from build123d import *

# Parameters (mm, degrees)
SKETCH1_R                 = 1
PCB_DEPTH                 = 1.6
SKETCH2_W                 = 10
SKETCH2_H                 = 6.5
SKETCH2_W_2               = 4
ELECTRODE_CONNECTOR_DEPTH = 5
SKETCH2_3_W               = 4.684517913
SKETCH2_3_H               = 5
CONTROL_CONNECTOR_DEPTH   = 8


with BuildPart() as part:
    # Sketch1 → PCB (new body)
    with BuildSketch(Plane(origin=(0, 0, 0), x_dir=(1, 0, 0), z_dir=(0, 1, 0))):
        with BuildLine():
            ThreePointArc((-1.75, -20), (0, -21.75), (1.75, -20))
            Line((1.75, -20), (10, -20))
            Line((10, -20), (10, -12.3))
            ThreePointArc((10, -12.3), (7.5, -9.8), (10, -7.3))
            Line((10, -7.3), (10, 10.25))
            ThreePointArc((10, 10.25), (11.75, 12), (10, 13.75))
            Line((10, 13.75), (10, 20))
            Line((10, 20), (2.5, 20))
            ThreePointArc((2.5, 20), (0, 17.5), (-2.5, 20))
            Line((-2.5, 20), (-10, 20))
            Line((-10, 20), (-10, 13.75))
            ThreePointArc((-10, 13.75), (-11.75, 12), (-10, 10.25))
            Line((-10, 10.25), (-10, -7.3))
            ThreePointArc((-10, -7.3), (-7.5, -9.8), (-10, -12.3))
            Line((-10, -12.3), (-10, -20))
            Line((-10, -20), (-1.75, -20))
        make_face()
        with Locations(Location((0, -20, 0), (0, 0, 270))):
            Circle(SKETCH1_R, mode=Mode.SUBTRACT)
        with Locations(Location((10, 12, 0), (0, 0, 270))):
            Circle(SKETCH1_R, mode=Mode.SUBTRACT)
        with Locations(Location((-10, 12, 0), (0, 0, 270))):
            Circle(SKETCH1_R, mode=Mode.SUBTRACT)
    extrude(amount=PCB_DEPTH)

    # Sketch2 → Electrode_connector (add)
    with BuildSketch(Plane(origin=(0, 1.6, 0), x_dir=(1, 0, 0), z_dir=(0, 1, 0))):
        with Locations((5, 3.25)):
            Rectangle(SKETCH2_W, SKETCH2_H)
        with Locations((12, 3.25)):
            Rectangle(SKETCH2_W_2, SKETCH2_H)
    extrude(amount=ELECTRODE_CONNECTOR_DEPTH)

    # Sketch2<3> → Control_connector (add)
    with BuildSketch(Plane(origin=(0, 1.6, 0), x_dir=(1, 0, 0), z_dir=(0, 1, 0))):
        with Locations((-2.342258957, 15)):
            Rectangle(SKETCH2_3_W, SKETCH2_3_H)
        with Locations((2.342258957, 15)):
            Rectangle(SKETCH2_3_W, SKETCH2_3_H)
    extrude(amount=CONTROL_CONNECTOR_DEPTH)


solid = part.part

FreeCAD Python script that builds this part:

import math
import FreeCAD as App
import Part
import Sketcher
from FreeCAD import Vector
Q = App.Units.Quantity

doc = App.newDocument("Part")
params = doc.addObject("Spreadsheet::Sheet", "Params")
for row, (alias, value) in enumerate([
    ("sketch1_diameter", "2 mm"),
    ("sketch1_radius", "2.5 mm"),
    ("sketch1_radius2", "1.75 mm"),
    ("sketch1_width", "7.5 mm"),
    ("sketch1_height", "7.7 mm"),
    ("pad1_length", "1.6 mm"),
    ("sketch2_width", "14 mm"),
    ("sketch2_height", "6.5 mm"),
    ("pad2_length", "5 mm"),
    ("sketch3_height", "5 mm"),
    ("pad3_length", "8 mm"),
], start=1):
    params.set(f"A{row}", alias)
    params.set(f"B{row}", "=" + value)
    params.setAlias(f"B{row}", alias)

body = doc.addObject("PartDesign::Body", "Body")

# Sketch on XZ plane
sketch1 = body.newObject("Sketcher::SketchObject", "Sketch")
sketch1.AttachmentSupport = (doc.getObject("XZ_Plane"), [""])
sketch1.MapMode = "FlatFace"
sketch1.addGeometry(Part.ArcOfCircle(Part.Circle(Vector(0, 20, 0), Vector(0, 0, 1), 1.8), math.radians(0), math.radians(180)), False)
sketch1.addGeometry(Part.LineSegment(Vector(1.8, 20, 0), Vector(10, 20, 0)), False)
sketch1.addGeometry(Part.LineSegment(Vector(10, 20, 0), Vector(10, 12.3, 0)), False)
sketch1.addGeometry(Part.ArcOfCircle(Part.Circle(Vector(10, 9.8, 0), Vector(0, 0, 1), 2.5), math.radians(90), math.radians(270)), False)
sketch1.addGeometry(Part.LineSegment(Vector(10, 7.3, 0), Vector(10, -10.2, 0)), False)
sketch1.addGeometry(Part.ArcOfCircle(Part.Circle(Vector(10, -12, 0), Vector(0, 0, 1), 1.8), math.radians(-90), math.radians(90)), False)
sketch1.addGeometry(Part.LineSegment(Vector(10, -13.8, 0), Vector(10, -20, 0)), False)
sketch1.addGeometry(Part.LineSegment(Vector(10, -20, 0), Vector(2.5, -20, 0)), False)
sketch1.addGeometry(Part.ArcOfCircle(Part.Circle(Vector(0, -20, 0), Vector(0, 0, 1), 2.5), math.radians(0), math.radians(180)), False)
sketch1.addGeometry(Part.LineSegment(Vector(-2.5, -20, 0), Vector(-10, -20, 0)), False)
sketch1.addGeometry(Part.LineSegment(Vector(-10, -20, 0), Vector(-10, -13.8, 0)), False)
sketch1.addGeometry(Part.ArcOfCircle(Part.Circle(Vector(-10, -12, 0), Vector(0, 0, 1), 1.8), math.radians(90), math.radians(270)), False)
sketch1.addGeometry(Part.LineSegment(Vector(-10, -10.2, 0), Vector(-10, 7.3, 0)), False)
sketch1.addGeometry(Part.ArcOfCircle(Part.Circle(Vector(-10, 9.8, 0), Vector(0, 0, 1), 2.5), math.radians(-90), math.radians(90)), False)
sketch1.addGeometry(Part.LineSegment(Vector(-10, 12.3, 0), Vector(-10, 20, 0)), False)
sketch1.addGeometry(Part.LineSegment(Vector(-10, 20, 0), Vector(-1.8, 20, 0)), False)
sketch1.addGeometry(Part.Circle(Vector(0, 20, 0), Vector(0, 0, 1), 1), False)
sketch1.addGeometry(Part.Circle(Vector(-10, -12, 0), Vector(0, 0, 1), 1), False)
sketch1.addGeometry(Part.Circle(Vector(10, -12, 0), Vector(0, 0, 1), 1), False)
sketch1.addConstraint(Sketcher.Constraint("Coincident", 0, 1, 1, 1))
sketch1.addConstraint(Sketcher.Constraint("Coincident", 1, 2, 2, 1))
sketch1.addConstraint(Sketcher.Constraint("Coincident", 2, 2, 3, 1))
sketch1.addConstraint(Sketcher.Constraint("Coincident", 3, 2, 4, 1))
sketch1.addConstraint(Sketcher.Constraint("Coincident", 4, 2, 5, 2))
sketch1.addConstraint(Sketcher.Constraint("Coincident", 5, 1, 6, 1))
sketch1.addConstraint(Sketcher.Constraint("Coincident", 6, 2, 7, 1))
sketch1.addConstraint(Sketcher.Constraint("Coincident", 7, 2, 8, 1))
sketch1.addConstraint(Sketcher.Constraint("Coincident", 8, 2, 9, 1))
sketch1.addConstraint(Sketcher.Constraint("Coincident", 9, 2, 10, 1))
sketch1.addConstraint(Sketcher.Constraint("Coincident", 10, 2, 11, 2))
sketch1.addConstraint(Sketcher.Constraint("Coincident", 11, 1, 12, 1))
sketch1.addConstraint(Sketcher.Constraint("Coincident", 12, 2, 13, 1))
sketch1.addConstraint(Sketcher.Constraint("Coincident", 13, 2, 14, 1))
sketch1.addConstraint(Sketcher.Constraint("Coincident", 14, 2, 15, 1))
sketch1.addConstraint(Sketcher.Constraint("Coincident", 15, 2, 0, 2))
sketch1.addConstraint(Sketcher.Constraint("Horizontal", 1))
sketch1.addConstraint(Sketcher.Constraint("Vertical", 2))
sketch1.addConstraint(Sketcher.Constraint("Vertical", 4))
sketch1.addConstraint(Sketcher.Constraint("Vertical", 6))
sketch1.addConstraint(Sketcher.Constraint("Horizontal", 7))
sketch1.addConstraint(Sketcher.Constraint("Horizontal", 9))
sketch1.addConstraint(Sketcher.Constraint("Vertical", 10))
sketch1.addConstraint(Sketcher.Constraint("Vertical", 12))
sketch1.addConstraint(Sketcher.Constraint("Vertical", 14))
sketch1.addConstraint(Sketcher.Constraint("Horizontal", 15))
sketch1.addConstraint(Sketcher.Constraint("Coincident", 16, 3, 0, 3))
sketch1.addConstraint(Sketcher.Constraint("Coincident", 17, 3, 11, 3))
sketch1.addConstraint(Sketcher.Constraint("Coincident", 18, 3, 5, 3))
sketch1.addConstraint(Sketcher.Constraint("Equal", 0, 5))
sketch1.addConstraint(Sketcher.Constraint("Equal", 3, 8))
sketch1.addConstraint(Sketcher.Constraint("Equal", 5, 11))
sketch1.addConstraint(Sketcher.Constraint("Equal", 8, 13))
sketch1.addConstraint(Sketcher.Constraint("Equal", 16, 17))
sketch1.addConstraint(Sketcher.Constraint("Equal", 17, 18))
sketch1.addConstraint(Sketcher.Constraint("Symmetric", 0, 3, 8, 3, -1, 1))
sketch1.addConstraint(Sketcher.Constraint("Symmetric", 1, 2, 9, 2, -1, 1))
sketch1.addConstraint(Sketcher.Constraint("Symmetric", 6, 2, 14, 2, -1, 1))
sketch1.addConstraint(Sketcher.Constraint("Symmetric", 5, 3, 11, 3, -2))
sketch1.addConstraint(Sketcher.Constraint("Symmetric", 3, 3, 13, 3, -2))
sketch1.addConstraint(Sketcher.Constraint("Symmetric", 7, 2, 8, 2, -2))
sketch1.addConstraint(Sketcher.Constraint("Horizontal", 16, 3, 0, 1))
sketch1.addConstraint(Sketcher.Constraint("Vertical", 3, 3, 5, 3))
sketch1.addConstraint(Sketcher.Constraint("Vertical", 18, 3, 1, 2))
sketch1.addConstraint(Sketcher.Constraint("Vertical", 2, 2, 3, 2))
sketch1.addConstraint(Sketcher.Constraint("Vertical", 4, 2, 5, 1))
sketch1.addConstraint(Sketcher.Constraint("Vertical", 10, 2, 11, 1))
sketch1.addConstraint(Sketcher.Constraint("Diameter", 16, Q("2 mm")))
sketch1.addConstraint(Sketcher.Constraint("Radius", 3, Q("2.5 mm")))
sketch1.addConstraint(Sketcher.Constraint("Radius", 0, Q("1.75 mm")))
sketch1.addConstraint(Sketcher.Constraint("DistanceX", 7, 2, 7, 1, Q("7.5 mm")))
sketch1.addConstraint(Sketcher.Constraint("DistanceY", 2, 2, 2, 1, Q("7.7 mm")))
sketch1.addConstraint(Sketcher.Constraint("DistanceY", -1, 1, 0, 3, Q("20 mm")))
sketch1.addConstraint(Sketcher.Constraint("DistanceY", 5, 3, -1, 1, Q("12 mm")))
sketch1.setExpression("Constraints[47]", "Params.sketch1_diameter")
sketch1.setExpression("Constraints[48]", "Params.sketch1_radius")
sketch1.setExpression("Constraints[49]", "Params.sketch1_radius2")
sketch1.setExpression("Constraints[50]", "Params.sketch1_width")
sketch1.setExpression("Constraints[51]", "Params.sketch1_height")
pad1 = body.newObject("PartDesign::Pad", "Pad")
pad1.Profile = sketch1
pad1.setExpression("Length", "Params.pad1_length")
pad1.Reversed = True

# Sketch on XZ plane
sketch2 = body.newObject("Sketcher::SketchObject", "Sketch001")
sketch2.AttachmentSupport = (doc.getObject("XZ_Plane"), [""])
sketch2.MapMode = "FlatFace"
sketch2.AttachmentOffset = App.Placement(Vector(0, 0, -1.6), App.Rotation())
sketch2.addGeometry(Part.LineSegment(Vector(0, -6, 0), Vector(0, 0, 0)), False)
sketch2.addGeometry(Part.LineSegment(Vector(0, 0, 0), Vector(14, 0, 0)), False)
sketch2.addGeometry(Part.LineSegment(Vector(14, 0, 0), Vector(14, -6, 0)), False)
sketch2.addGeometry(Part.LineSegment(Vector(14, -6, 0), Vector(0, -6, 0)), False)
sketch2.addConstraint(Sketcher.Constraint("Coincident", 0, 2, 1, 1))
sketch2.addConstraint(Sketcher.Constraint("Coincident", 1, 2, 2, 1))
sketch2.addConstraint(Sketcher.Constraint("Coincident", 2, 2, 3, 1))
sketch2.addConstraint(Sketcher.Constraint("Coincident", 3, 2, 0, 1))
sketch2.addConstraint(Sketcher.Constraint("Vertical", 0))
sketch2.addConstraint(Sketcher.Constraint("Horizontal", 1))
sketch2.addConstraint(Sketcher.Constraint("Vertical", 2))
sketch2.addConstraint(Sketcher.Constraint("Horizontal", 3))
sketch2.addConstraint(Sketcher.Constraint("Coincident", 0, 2, -1, 1))
sketch2.addConstraint(Sketcher.Constraint("DistanceX", 1, 1, 1, 2, Q("14 mm")))
sketch2.addConstraint(Sketcher.Constraint("DistanceY", 0, 1, 0, 2, Q("6.5 mm")))
sketch2.setExpression("Constraints[9]", "Params.sketch2_width")
sketch2.setExpression("Constraints[10]", "Params.sketch2_height")
pad2 = body.newObject("PartDesign::Pad", "Pad001")
pad2.Profile = sketch2
pad2.setExpression("Length", "Params.pad2_length")
pad2.Reversed = True

# Sketch on XZ plane
sketch3 = body.newObject("Sketcher::SketchObject", "Sketch002")
sketch3.AttachmentSupport = (doc.getObject("XZ_Plane"), [""])
sketch3.MapMode = "FlatFace"
sketch3.AttachmentOffset = App.Placement(Vector(0, 0, -1.6), App.Rotation())
sketch3.addGeometry(Part.LineSegment(Vector(-5, -18, 0), Vector(-5, -12, 0)), False)
sketch3.addGeometry(Part.LineSegment(Vector(-5, -12, 0), Vector(5, -12, 0)), False)
sketch3.addGeometry(Part.LineSegment(Vector(5, -12, 0), Vector(5, -18, 0)), False)
sketch3.addGeometry(Part.LineSegment(Vector(5, -18, 0), Vector(-5, -18, 0)), False)
sketch3.addConstraint(Sketcher.Constraint("Coincident", 0, 2, 1, 1))
sketch3.addConstraint(Sketcher.Constraint("Coincident", 1, 2, 2, 1))
sketch3.addConstraint(Sketcher.Constraint("Coincident", 2, 2, 3, 1))
sketch3.addConstraint(Sketcher.Constraint("Coincident", 3, 2, 0, 1))
sketch3.addConstraint(Sketcher.Constraint("Vertical", 0))
sketch3.addConstraint(Sketcher.Constraint("Horizontal", 1))
sketch3.addConstraint(Sketcher.Constraint("Vertical", 2))
sketch3.addConstraint(Sketcher.Constraint("Horizontal", 3))
sketch3.addConstraint(Sketcher.Constraint("DistanceY", 0, 1, 0, 2, Q("5 mm")))
sketch3.addConstraint(Sketcher.Constraint("DistanceY", 0, 2, -1, 1, Q("12.5 mm")))
sketch3.addConstraint(Sketcher.Constraint("DistanceX", 1, 1, 1, 2, Q("9.369036 mm")))
sketch3.addConstraint(Sketcher.Constraint("DistanceX", 0, 2, -1, 1, Q("4.684518 mm")))
sketch3.setExpression("Constraints[8]", "Params.sketch3_height")
pad3 = body.newObject("PartDesign::Pad", "Pad002")
pad3.Profile = sketch3
pad3.setExpression("Length", "Params.pad3_length")
pad3.Reversed = True

doc.recompute()
